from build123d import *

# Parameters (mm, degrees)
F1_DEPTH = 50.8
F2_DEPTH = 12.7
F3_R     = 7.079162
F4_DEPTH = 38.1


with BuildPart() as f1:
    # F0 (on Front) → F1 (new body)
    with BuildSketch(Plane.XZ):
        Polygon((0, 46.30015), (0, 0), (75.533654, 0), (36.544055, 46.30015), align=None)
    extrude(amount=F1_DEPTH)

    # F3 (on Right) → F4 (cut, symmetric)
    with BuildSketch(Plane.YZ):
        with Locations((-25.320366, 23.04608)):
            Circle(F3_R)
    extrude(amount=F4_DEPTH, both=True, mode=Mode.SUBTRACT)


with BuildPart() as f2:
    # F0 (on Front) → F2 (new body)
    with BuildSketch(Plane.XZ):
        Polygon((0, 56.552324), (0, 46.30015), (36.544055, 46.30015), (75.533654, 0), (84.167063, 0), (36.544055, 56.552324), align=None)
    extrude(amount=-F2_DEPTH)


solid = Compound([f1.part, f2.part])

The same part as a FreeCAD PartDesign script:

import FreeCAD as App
import Part
import Sketcher
from FreeCAD import Vector
Q = App.Units.Quantity


def add_polygon(sketch, points):
    """Adds a closed chain of lines whose ends are joined by coincident constraints."""
    first, n = sketch.GeometryCount, len(points)
    for a, b in zip(points, points[1:] + points[:1]):
        sketch.addGeometry(Part.LineSegment(App.Vector(*a, 0), App.Vector(*b, 0)), False)
    for i in range(n):
        sketch.addConstraint(Sketcher.Constraint("Coincident", first + i, 2, first + (i + 1) % n, 1))

doc = App.newDocument("Part")
body = doc.addObject("PartDesign::Body", "Body")

sketch1 = body.newObject("Sketcher::SketchObject", "Sketch")
sketch1.AttachmentSupport = (doc.getObject("XZ_Plane"), [""])
sketch1.MapMode = "FlatFace"
add_polygon(sketch1, [(0, 46), (0, 0), (76, 0), (37, 46)])
sketch1.addConstraint([
    Sketcher.Constraint("Vertical", 0),
    Sketcher.Constraint("Horizontal", 1),
    Sketcher.Constraint("Horizontal", 3),
    Sketcher.Constraint("Coincident", 0, 2, -1, 1),
    Sketcher.Constraint("DistanceY", 0, 2, 0, 1, 46.30015),
    Sketcher.Constraint("DistanceX", 2, 2, 1, 2, 38.989599),
    Sketcher.Constraint("DistanceX", 1, 1, 1, 2, 75.533654),
])
pad1 = body.newObject("PartDesign::Pad", "Pad")
pad1.Profile = sketch1
pad1.Length = Q("2 in")

sketch2 = body.newObject("Sketcher::SketchObject", "Sketch001")
sketch2.AttachmentSupport = (doc.getObject("YZ_Plane"), [""])
sketch2.MapMode = "FlatFace"
sketch2.addGeometry(Part.Circle(Vector(-25, 23, 0), Vector(0, 0, 1), 7), False)
sketch2.addConstraint([
    Sketcher.Constraint("Diameter", 0, 14.158324),
    Sketcher.Constraint("DistanceY", -1, 1, 0, 3, 23.04608),
    Sketcher.Constraint("DistanceX", 0, 3, -1, 1, 25.320366),
])
pocket1 = body.newObject("PartDesign::Pocket", "Pocket")
pocket1.Profile = sketch2
pocket1.Length = Q("3 in")
pocket1.Midplane = True
body2 = doc.addObject("PartDesign::Body", "Body001")

sketch3 = body2.newObject("Sketcher::SketchObject", "Sketch002")
sketch3.AttachmentSupport = (doc.getObject("XZ_Plane001"), [""])
sketch3.MapMode = "FlatFace"
add_polygon(sketch3, [(0, 57), (0, 46), (37, 46), (76, 0), (84, 0), (37, 57)])
sketch3.addConstraint([
    Sketcher.Constraint("Vertical", 0),
    Sketcher.Constraint("Horizontal", 1),
    Sketcher.Constraint("Horizontal", 3),
    Sketcher.Constraint("Horizontal", 5),
    Sketcher.Constraint("PointOnObject", 0, 2, -2),
    Sketcher.Constraint("PointOnObject", 2, 2, -1),
    Sketcher.Constraint("Parallel", 2, 4),
    Sketcher.Constraint("Vertical", 1, 2, 4, 2),
    Sketcher.Constraint("DistanceX", 3, 1, 3, 2, 8.633409),
    Sketcher.Constraint("DistanceX", 1, 2, 2, 2, 38.989599),
    Sketcher.Constraint("DistanceX", 1, 1, 1, 2, 36.544055),
    Sketcher.Constraint("DistanceY", 0, 2, 0, 1, 10.252174),
])
pad2 = body2.newObject("PartDesign::Pad", "Pad001")
pad2.Profile = sketch3
pad2.Length = Q("0.5 in")
pad2.Reversed = True

doc.recompute()
